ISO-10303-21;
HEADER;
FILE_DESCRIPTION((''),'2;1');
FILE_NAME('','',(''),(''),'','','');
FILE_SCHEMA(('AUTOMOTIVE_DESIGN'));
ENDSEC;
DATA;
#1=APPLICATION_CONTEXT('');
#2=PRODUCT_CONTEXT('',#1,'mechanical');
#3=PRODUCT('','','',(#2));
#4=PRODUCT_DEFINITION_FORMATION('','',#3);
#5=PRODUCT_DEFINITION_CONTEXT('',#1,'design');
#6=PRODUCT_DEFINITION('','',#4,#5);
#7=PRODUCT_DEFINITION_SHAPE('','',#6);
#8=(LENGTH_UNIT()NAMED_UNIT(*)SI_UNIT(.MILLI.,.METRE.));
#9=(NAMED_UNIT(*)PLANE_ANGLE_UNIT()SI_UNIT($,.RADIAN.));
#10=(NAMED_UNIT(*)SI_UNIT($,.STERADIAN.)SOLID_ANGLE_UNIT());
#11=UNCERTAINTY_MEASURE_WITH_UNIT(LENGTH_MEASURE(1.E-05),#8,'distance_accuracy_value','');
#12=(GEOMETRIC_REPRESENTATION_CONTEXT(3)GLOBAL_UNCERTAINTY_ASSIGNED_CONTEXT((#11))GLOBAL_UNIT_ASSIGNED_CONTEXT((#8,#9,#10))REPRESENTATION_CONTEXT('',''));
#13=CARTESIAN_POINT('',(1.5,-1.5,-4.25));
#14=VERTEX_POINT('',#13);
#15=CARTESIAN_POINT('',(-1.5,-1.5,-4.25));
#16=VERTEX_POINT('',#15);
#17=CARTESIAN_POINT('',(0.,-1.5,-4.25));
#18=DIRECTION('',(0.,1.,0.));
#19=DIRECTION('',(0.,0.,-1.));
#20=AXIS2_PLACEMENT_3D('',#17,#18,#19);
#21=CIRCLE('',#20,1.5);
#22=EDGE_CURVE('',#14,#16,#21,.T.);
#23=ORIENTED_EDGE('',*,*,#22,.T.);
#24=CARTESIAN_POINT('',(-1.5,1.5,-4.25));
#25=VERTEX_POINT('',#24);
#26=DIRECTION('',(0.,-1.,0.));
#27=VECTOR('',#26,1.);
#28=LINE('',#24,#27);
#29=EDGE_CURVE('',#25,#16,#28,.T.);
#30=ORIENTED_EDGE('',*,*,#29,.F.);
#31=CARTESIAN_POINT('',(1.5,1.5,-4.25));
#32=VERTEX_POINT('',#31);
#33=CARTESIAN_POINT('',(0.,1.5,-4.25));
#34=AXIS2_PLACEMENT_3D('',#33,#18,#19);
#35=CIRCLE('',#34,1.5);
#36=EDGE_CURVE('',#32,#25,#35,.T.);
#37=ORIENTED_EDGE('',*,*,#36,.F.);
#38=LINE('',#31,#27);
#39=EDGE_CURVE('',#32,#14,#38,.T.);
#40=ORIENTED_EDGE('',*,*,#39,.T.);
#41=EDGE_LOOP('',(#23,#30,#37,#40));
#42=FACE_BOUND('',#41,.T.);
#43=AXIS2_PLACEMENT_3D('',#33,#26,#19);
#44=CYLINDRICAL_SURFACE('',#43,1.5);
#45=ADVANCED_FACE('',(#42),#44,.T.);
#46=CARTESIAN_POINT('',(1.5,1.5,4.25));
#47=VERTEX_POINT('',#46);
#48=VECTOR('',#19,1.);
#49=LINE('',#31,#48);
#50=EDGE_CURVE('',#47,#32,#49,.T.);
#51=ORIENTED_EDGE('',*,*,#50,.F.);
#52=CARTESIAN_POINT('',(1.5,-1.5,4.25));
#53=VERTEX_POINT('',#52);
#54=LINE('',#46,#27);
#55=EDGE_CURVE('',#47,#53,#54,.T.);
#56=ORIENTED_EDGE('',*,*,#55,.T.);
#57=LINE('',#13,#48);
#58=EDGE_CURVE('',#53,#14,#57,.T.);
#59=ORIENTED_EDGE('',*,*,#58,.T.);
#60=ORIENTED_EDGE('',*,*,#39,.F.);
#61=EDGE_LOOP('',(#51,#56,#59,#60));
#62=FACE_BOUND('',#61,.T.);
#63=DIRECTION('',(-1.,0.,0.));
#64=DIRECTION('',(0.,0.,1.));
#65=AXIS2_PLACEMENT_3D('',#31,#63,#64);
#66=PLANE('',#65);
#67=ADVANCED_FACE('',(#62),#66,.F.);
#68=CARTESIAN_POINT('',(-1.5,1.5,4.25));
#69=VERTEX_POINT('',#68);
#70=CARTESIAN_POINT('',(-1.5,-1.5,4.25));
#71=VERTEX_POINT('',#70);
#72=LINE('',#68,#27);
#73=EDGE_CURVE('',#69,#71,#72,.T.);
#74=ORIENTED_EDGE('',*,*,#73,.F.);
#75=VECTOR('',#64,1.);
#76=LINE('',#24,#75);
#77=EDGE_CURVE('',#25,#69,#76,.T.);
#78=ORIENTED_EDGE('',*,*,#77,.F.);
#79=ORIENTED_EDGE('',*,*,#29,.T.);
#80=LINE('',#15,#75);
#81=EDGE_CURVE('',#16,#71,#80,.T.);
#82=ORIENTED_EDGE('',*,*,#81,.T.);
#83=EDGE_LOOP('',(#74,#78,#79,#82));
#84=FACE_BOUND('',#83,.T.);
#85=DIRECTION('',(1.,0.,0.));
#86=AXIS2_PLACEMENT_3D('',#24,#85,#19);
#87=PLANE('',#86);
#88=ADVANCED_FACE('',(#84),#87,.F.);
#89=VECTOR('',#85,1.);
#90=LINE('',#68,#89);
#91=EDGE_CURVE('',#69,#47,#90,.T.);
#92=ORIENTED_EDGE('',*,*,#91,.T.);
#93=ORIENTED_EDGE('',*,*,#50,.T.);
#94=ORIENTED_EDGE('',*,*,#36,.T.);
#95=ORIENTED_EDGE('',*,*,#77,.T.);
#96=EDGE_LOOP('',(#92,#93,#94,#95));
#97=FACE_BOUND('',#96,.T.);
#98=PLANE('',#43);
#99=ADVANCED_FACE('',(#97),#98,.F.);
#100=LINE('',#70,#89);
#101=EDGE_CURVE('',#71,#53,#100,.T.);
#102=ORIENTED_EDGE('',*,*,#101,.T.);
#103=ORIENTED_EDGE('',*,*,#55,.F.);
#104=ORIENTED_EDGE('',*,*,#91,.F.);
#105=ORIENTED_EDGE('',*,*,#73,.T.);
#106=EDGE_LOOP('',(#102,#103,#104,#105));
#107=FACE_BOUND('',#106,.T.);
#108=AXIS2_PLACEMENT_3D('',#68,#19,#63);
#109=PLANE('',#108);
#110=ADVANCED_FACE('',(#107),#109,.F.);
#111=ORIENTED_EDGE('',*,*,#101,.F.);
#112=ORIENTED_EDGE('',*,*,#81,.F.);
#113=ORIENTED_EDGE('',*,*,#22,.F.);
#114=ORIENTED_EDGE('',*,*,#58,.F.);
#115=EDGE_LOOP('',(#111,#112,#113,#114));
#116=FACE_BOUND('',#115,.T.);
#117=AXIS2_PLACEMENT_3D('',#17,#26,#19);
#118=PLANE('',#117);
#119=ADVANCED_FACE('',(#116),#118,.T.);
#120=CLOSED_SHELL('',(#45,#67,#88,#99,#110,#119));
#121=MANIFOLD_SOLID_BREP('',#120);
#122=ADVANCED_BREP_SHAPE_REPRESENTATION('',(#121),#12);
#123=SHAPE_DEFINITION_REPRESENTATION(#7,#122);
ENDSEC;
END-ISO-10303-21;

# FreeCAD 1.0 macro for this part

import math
import FreeCAD as App
import Part
import Sketcher

doc = App.newDocument("Part")
body = doc.addObject("PartDesign::Body", "Body")

# Sketch on XZ plane
sketch1 = body.newObject("Sketcher::SketchObject", "Sketch")
sketch1.AttachmentSupport = (doc.getObject("XZ_Plane"), [""])
sketch1.MapMode = "FlatFace"
sketch1.addGeometry([
    Part.LineSegment(App.Vector(-1.5, -4.2, 0), App.Vector(-1.5, 4.2, 0)),
    Part.LineSegment(App.Vector(-1.5, 4.2, 0), App.Vector(1.5, 4.2, 0)),
    Part.LineSegment(App.Vector(1.5, 4.2, 0), App.Vector(1.5, -4.2, 0)),
    Part.ArcOfCircle(Part.Circle(App.Vector(0, -4.2, 0), App.Vector(0, 0, 1), 1.5), math.radians(180), math.radians(360)),
], False)
sketch1.addConstraint([
    Sketcher.Constraint("Coincident", 0, 2, 1, 1),
    Sketcher.Constraint("Coincident", 1, 2, 2, 1),
    Sketcher.Constraint("Tangent", 2, 2, 3, 2),
    Sketcher.Constraint("Tangent", 3, 1, 0, 1),
    Sketcher.Constraint("Vertical", 0),
    Sketcher.Constraint("Horizontal", 1),
    Sketcher.Constraint("Vertical", 2),
    Sketcher.Constraint("Symmetric", 0, 2, 2, 2, -1, 1),
    Sketcher.Constraint("Radius", 3, 1.5),
    Sketcher.Constraint("DistanceY", 0, 1, 0, 2, 8.5),
])
pad1 = body.newObject("PartDesign::Pad", "Pad")
pad1.Profile = sketch1
pad1.Length = 3
pad1.Midplane = True

doc.recompute()
